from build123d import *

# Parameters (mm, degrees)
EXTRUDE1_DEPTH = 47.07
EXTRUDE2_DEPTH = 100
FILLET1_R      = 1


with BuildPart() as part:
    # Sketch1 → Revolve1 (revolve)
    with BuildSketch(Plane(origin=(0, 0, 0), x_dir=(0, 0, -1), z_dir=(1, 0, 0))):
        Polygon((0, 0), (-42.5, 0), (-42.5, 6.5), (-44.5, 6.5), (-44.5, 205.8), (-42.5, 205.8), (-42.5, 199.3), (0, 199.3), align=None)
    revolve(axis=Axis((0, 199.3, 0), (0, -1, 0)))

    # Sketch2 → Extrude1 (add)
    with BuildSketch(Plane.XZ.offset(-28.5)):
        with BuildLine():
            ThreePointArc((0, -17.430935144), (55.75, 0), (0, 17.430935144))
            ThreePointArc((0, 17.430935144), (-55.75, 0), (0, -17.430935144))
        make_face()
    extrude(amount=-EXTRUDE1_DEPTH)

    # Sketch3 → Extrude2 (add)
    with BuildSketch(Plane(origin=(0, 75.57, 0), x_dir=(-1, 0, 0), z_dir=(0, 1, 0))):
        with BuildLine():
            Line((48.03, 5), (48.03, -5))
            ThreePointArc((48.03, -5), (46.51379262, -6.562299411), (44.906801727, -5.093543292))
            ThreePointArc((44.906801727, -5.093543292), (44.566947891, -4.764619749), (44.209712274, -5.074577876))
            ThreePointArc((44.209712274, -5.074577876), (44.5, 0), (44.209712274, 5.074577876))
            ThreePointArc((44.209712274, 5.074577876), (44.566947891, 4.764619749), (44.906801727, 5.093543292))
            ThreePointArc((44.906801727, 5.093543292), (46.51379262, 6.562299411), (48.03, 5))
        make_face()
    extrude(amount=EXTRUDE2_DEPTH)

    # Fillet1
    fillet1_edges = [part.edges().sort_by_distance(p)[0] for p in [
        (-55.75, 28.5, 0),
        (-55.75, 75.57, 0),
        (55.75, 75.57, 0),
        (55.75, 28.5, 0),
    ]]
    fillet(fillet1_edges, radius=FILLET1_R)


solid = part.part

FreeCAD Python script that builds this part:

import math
import FreeCAD as App
import Part
import Sketcher

V = App.Vector
Q = App.Units.Quantity


def edges_at(feature, points):
    """Names of the edges that pass closest to the given points."""
    edges = feature.Shape.Edges
    near = lambda p: min(range(len(edges)), key=lambda i: edges[i].distToShape(Part.Vertex(*p))[0])
    return sorted({f"Edge{near(p) + 1}" for p in points})


def add_polygon(sketch, points):
    """Adds a closed chain of lines whose ends are joined by coincident constraints."""
    first, n = sketch.GeometryCount, len(points)
    for a, b in zip(points, points[1:] + points[:1]):
        sketch.addGeometry(Part.LineSegment(App.Vector(*a, 0), App.Vector(*b, 0)), False)
    for i in range(n):
        sketch.addConstraint(Sketcher.Constraint("Coincident", first + i, 2, first + (i + 1) % n, 1))

doc = App.newDocument("Part")
params = doc.addObject("Spreadsheet::Sheet", "Params")
for row, (alias, value) in enumerate([
    ("sketch1_height", "2 mm"),
    ("sketch1_width", "199.3 mm"),
    ("sketch1_width2", "6.5 mm"),
    ("sketch1_height2", "42.5 mm"),
    ("revolution_angle", "360 deg"),
    ("sketch2_radius", "30.6 mm"),
    ("pad1_length", "47.07 mm"),
    ("sketch3_radius", "44.5 mm"),
    ("sketch3_height", "10 mm"),
    ("sketch3_radius2", "0.35 mm"),
    ("pad2_length", "100 mm"),
    ("fillet_radius", "1 mm"),
], start=1):
    params.set(f"A{row}", alias)
    params.set(f"B{row}", "=" + value)
    params.setAlias(f"B{row}", alias)

body = doc.addObject("PartDesign::Body", "Body")

# Sketch on YZ plane
sketch1 = doc.addObject("Sketcher::SketchObject", "Sketch")
body.addObject(sketch1)
sketch1.AttachmentSupport = (doc.YZ_Plane, [""])
sketch1.MapMode = "FlatFace"
add_polygon(sketch1, [(0, 42.5), (0, 0), (199.3, 0), (199.3, 42.5), (205.8, 42.5), (205.8, 44.5), (6.5, 44.5), (6.5, 42.5)])  # lines 0-7
sketch1.addConstraint([
    Sketcher.Constraint("Vertical", 0),
    Sketcher.Constraint("Horizontal", 1),
    Sketcher.Constraint("Vertical", 2),
    Sketcher.Constraint("Horizontal", 3),
    Sketcher.Constraint("Vertical", 4),
    Sketcher.Constraint("Horizontal", 5),
    Sketcher.Constraint("Vertical", 6),
    Sketcher.Constraint("Horizontal", 7),
    Sketcher.Constraint("Coincident", 0, 2, -1, 1),
    Sketcher.Constraint("Horizontal", 3, 2, 6, 2),
    Sketcher.Constraint("Equal", 1, 5),
    Sketcher.Constraint("DistanceY", 4, 1, 4, 2, Q("2 mm")),
    Sketcher.Constraint("DistanceX", 1, 1, 1, 2, Q("199.3 mm")),
    Sketcher.Constraint("DistanceX", 3, 1, 3, 2, Q("6.5 mm")),
    Sketcher.Constraint("DistanceY", 0, 2, 0, 1, Q("42.5 mm")),
])
sketch1.setExpression("Constraints[19]", "Params.sketch1_height")
sketch1.setExpression("Constraints[20]", "Params.sketch1_width")
sketch1.setExpression("Constraints[21]", "Params.sketch1_width2")
sketch1.setExpression("Constraints[22]", "Params.sketch1_height2")
revolution = doc.addObject("PartDesign::Revolution", "Revolution")
body.addObject(revolution)
revolution.Profile = sketch1
revolution.ReferenceAxis = (sketch1, ["H_Axis"])
revolution.setExpression("Angle", "Params.revolution_angle")

# Sketch on XZ plane
sketch2 = doc.addObject("Sketcher::SketchObject", "Sketch001")
body.addObject(sketch2)
sketch2.AttachmentSupport = (doc.XZ_Plane, [""])
sketch2.MapMode = "FlatFace"
sketch2.AttachmentOffset = App.Placement(V(0, 0, -28.5), App.Rotation())
sketch2.addGeometry([
    Part.ArcOfCircle(Part.Circle(V(25.15, 0, 0), V(0, 0, 1), 30.6), math.radians(-145.274986), math.radians(145.274986)),
    Part.ArcOfCircle(Part.Circle(V(-25.15, 0, 0), V(0, 0, 1), 30.6), math.radians(34.725014), math.radians(325.274986)),
], False)
sketch2.addConstraint([
    Sketcher.Constraint("Coincident", 0, 1, 1, 2),
    Sketcher.Constraint("Coincident", 1, 1, 0, 2),
    Sketcher.Constraint("Equal", 0, 1),
    Sketcher.Constraint("Symmetric", 0, 3, 1, 3, -1, 1),
    Sketcher.Constraint("PointOnObject", 0, 3, -1),
    Sketcher.Constraint("Radius", 0, Q("30.6 mm")),
    Sketcher.Constraint("DistanceX", 1, 3, 0, 3, Q("50.3 mm")),
])
sketch2.setExpression("Constraints[5]", "Params.sketch2_radius")
pad1 = doc.addObject("PartDesign::Pad", "Pad")
body.addObject(pad1)
pad1.Profile = sketch2
pad1.setExpression("Length", "Params.pad1_length")
pad1.Reversed = True

# Sketch on XZ plane
sketch3 = doc.addObject("Sketcher::SketchObject", "Sketch002")
body.addObject(sketch3)
sketch3.AttachmentSupport = (doc.XZ_Plane, [""])
sketch3.MapMode = "FlatFace"
sketch3.AttachmentOffset = App.Placement(V(0, 0, -75.57), App.Rotation())
sketch3.addGeometry([
    Part.LineSegment(V(-48.03, -5, 0), V(-48.03, 5, 0)),  # 0
    Part.ArcOfCircle(Part.Circle(V(-46.467, 5, 0), V(0, 0, 1), 1.563), math.radians(3.43112), math.radians(180)),  # 1
    Part.ArcOfCircle(Part.Circle(V(-44.557429, 5.11449, 0), V(0, 0, 1), 0.35), math.radians(-176.56888), math.radians(-6.547995)),  # 2
    Part.ArcOfCircle(Part.Circle(V(0, 0, 0), V(0, 0, 1), 44.5), math.radians(173.452005), math.radians(186.547995)),  # 3
    Part.ArcOfCircle(Part.Circle(V(-44.557429, -5.11449, 0), V(0, 0, 1), 0.35), math.radians(6.547995), math.radians(176.56888)),  # 4
    Part.ArcOfCircle(Part.Circle(V(-46.467, -5, 0), V(0, 0, 1), 1.563), math.radians(180), math.radians(356.56888)),  # 5
], False)
sketch3.addConstraint([
    Sketcher.Constraint("Tangent", 0, 2, 1, 2),
    Sketcher.Constraint("Tangent", 1, 1, 2, 1),
    Sketcher.Constraint("Tangent", 2, 2, 3, 1),
    Sketcher.Constraint("Tangent", 3, 2, 4, 1),
    Sketcher.Constraint("Tangent", 4, 2, 5, 2),
    Sketcher.Constraint("Tangent", 5, 1, 0, 1),
    Sketcher.Constraint("Vertical", 0),
    Sketcher.Constraint("Coincident", 3, 3, -1, 1),
    Sketcher.Constraint("Equal", 2, 4),
    Sketcher.Constraint("Equal", 1, 5),
    Sketcher.Constraint("Vertical", 2, 3, 4, 3),
    Sketcher.Constraint("Radius", 3, Q("44.5 mm")),
    Sketcher.Constraint("DistanceY", 0, 1, 0, 2, Q("10 mm")),
    Sketcher.Constraint("Radius", 2, Q("0.35 mm")),
    Sketcher.Constraint("Radius", 1, Q("1.563 mm")),
    Sketcher.Constraint("DistanceX", 0, 2, -1, 1, Q("48.03 mm")),
])
sketch3.setExpression("Constraints[11]", "Params.sketch3_radius")
sketch3.setExpression("Constraints[12]", "Params.sketch3_height")
sketch3.setExpression("Constraints[13]", "Params.sketch3_radius2")
pad2 = doc.addObject("PartDesign::Pad", "Pad001")
body.addObject(pad2)
pad2.Profile = sketch3
pad2.setExpression("Length", "Params.pad2_length")
pad2.Reversed = True
doc.recompute()

fillet = doc.addObject("PartDesign::Fillet", "Fillet")
body.addObject(fillet)
fillet.Base = (pad2, edges_at(pad2, [
    (-55.75, 28.5, 0),
    (-55.75, 75.57, 0),
    (55.75, 75.57, 0),
    (55.75, 28.5, 0),
]))
fillet.setExpression("Radius", "Params.fillet_radius")

doc.recompute()
